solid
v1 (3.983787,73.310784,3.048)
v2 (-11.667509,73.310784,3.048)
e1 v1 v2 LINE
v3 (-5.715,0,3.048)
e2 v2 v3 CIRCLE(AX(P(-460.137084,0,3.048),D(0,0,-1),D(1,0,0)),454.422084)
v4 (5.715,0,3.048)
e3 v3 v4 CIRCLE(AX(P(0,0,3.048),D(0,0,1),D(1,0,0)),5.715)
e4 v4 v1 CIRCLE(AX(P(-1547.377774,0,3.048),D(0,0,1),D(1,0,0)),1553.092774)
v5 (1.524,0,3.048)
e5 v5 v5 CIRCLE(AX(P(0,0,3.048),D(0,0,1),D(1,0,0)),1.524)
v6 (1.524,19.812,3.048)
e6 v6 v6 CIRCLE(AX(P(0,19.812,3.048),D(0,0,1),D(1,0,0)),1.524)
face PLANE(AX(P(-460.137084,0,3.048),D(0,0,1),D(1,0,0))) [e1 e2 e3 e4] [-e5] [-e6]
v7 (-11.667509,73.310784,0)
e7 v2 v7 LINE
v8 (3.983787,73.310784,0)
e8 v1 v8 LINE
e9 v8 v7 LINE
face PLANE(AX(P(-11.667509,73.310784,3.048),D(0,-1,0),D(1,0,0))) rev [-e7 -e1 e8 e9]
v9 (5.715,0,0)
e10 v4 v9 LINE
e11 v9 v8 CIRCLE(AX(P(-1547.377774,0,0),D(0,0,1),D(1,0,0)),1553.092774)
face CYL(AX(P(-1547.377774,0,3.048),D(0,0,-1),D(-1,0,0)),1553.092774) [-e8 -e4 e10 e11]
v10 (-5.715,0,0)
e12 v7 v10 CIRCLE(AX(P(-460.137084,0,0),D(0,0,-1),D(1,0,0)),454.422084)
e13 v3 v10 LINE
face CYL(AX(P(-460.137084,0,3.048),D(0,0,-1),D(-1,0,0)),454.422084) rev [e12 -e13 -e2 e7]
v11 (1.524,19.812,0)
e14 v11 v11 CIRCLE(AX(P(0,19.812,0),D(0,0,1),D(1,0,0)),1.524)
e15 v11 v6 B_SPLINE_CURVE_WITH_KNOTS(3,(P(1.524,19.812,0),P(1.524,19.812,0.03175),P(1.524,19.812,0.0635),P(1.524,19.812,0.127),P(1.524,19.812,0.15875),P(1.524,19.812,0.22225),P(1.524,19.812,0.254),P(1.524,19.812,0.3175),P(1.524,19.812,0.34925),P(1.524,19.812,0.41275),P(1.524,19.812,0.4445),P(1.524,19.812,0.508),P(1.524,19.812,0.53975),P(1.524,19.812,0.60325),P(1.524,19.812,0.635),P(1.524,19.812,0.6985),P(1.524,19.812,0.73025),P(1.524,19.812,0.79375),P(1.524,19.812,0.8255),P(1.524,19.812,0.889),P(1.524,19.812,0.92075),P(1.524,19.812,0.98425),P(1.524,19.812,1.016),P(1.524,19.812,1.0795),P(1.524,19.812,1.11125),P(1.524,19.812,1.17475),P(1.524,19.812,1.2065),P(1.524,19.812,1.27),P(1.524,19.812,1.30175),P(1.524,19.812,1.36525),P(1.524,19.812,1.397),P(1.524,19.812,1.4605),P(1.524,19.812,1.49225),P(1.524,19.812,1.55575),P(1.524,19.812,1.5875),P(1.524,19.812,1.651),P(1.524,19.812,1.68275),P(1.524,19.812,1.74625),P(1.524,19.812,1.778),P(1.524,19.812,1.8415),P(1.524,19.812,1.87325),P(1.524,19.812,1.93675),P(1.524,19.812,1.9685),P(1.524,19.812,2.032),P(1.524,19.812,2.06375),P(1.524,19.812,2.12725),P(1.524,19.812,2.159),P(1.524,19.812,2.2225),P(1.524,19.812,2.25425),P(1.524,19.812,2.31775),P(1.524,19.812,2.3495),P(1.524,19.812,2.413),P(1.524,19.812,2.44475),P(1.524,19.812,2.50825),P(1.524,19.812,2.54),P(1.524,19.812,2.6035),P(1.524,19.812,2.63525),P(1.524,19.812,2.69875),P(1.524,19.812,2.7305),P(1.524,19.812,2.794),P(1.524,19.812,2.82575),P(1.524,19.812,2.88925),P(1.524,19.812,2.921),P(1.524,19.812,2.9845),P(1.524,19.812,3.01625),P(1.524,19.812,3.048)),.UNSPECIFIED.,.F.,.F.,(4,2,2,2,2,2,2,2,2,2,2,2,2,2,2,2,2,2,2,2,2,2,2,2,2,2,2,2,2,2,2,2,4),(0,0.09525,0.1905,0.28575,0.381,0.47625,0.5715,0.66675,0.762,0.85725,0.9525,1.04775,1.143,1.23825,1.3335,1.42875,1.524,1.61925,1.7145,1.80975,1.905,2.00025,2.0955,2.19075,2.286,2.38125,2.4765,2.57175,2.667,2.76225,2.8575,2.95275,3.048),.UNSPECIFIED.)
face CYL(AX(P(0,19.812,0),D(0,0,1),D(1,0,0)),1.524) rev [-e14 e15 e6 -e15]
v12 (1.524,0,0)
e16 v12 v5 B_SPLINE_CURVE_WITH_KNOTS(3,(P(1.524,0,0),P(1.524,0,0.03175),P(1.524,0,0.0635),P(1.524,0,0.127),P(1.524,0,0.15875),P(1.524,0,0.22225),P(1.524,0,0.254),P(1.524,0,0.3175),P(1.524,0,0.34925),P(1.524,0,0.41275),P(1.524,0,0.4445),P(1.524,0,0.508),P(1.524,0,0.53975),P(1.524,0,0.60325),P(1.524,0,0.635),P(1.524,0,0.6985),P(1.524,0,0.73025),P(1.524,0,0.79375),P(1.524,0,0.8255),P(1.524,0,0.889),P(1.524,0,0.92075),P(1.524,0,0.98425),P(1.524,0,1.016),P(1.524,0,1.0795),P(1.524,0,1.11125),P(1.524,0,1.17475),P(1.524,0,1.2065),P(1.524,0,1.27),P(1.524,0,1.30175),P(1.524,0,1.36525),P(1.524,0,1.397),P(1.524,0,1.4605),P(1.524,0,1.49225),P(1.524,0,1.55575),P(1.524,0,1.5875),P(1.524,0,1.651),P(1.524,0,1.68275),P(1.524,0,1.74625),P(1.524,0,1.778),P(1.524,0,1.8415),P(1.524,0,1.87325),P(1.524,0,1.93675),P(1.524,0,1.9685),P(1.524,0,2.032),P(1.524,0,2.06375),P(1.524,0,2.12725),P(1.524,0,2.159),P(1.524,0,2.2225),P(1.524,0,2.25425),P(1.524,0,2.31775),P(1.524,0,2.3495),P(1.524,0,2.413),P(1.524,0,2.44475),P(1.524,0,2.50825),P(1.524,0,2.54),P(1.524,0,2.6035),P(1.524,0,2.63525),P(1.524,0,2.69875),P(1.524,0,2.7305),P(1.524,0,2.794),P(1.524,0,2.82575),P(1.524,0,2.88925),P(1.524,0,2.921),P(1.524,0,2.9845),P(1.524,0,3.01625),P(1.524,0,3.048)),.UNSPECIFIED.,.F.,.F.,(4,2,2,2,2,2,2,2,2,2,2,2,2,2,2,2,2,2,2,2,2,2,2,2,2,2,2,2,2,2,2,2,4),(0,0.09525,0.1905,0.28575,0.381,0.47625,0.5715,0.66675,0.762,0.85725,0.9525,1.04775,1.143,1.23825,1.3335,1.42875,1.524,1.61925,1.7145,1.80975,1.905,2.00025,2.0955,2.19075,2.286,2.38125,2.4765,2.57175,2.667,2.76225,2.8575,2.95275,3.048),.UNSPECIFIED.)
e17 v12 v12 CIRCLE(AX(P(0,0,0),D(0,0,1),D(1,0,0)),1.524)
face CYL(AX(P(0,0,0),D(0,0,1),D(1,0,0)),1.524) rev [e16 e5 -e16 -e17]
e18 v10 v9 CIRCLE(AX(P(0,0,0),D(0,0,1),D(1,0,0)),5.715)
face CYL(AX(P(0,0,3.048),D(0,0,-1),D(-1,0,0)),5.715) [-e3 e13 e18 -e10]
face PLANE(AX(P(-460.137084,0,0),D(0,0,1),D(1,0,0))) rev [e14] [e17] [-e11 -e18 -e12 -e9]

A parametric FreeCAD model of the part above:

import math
import FreeCAD as App
import Part
import Sketcher
from FreeCAD import Vector
Q = App.Units.Quantity

doc = App.newDocument("Part")
params = doc.addObject("Spreadsheet::Sheet", "Params")
for row, (alias, value) in enumerate([
    ("sketch1_radius", "0.225 in"),
    ("pad1_length", "0.12 in"),
    ("sketch2_diameter", "0.12 in"),
    ("pocket1_length", "0.12 in"),
], start=1):
    params.set(f"A{row}", alias)
    params.set(f"B{row}", "=" + value)
    params.setAlias(f"B{row}", alias)

body = doc.addObject("PartDesign::Body", "Body")

sketch1 = body.newObject("Sketcher::SketchObject", "Sketch")
sketch1.AttachmentSupport = (doc.getObject("XY_Plane"), [""])
sketch1.MapMode = "FlatFace"
sketch1.addGeometry([
    Part.LineSegment(Vector(4, 73, 0), Vector(-12, 73, 0)),
    Part.ArcOfCircle(Part.Circle(Vector(-460, 0, 0), Vector(0, 0, 1), 454), math.radians(0), math.radians(9.28)),
    Part.ArcOfCircle(Part.Circle(Vector(0, 0, 0), Vector(0, 0, 1), 6), math.radians(180), math.radians(360)),
    Part.ArcOfCircle(Part.Circle(Vector(-1547, 0, 0), Vector(0, 0, 1), 1553), math.radians(0), math.radians(2.71)),
], False)
sketch1.addConstraint([
    Sketcher.Constraint("Coincident", 0, 2, 1, 2),
    Sketcher.Constraint("Tangent", 1, 1, 2, 1),
    Sketcher.Constraint("Tangent", 2, 2, 3, 1),
    Sketcher.Constraint("Coincident", 3, 2, 0, 1),
    Sketcher.Constraint("Horizontal", 0),
    Sketcher.Constraint("Coincident", 2, 3, -1, 1),
    Sketcher.Constraint("PointOnObject", 1, 3, -1),
    Sketcher.Constraint("PointOnObject", 3, 3, -1),
    Sketcher.Constraint("Radius", 2, Q("0.225 in")),
    Sketcher.Constraint("Radius", 1, 454.422084),
    Sketcher.Constraint("Radius", 3, 1553.092773),
    Sketcher.Constraint("DistanceX", 0, 2, 0, 1, 15.651297),
])
sketch1.setExpression("Constraints[8]", "Params.sketch1_radius")
pad1 = body.newObject("PartDesign::Pad", "Pad")
pad1.Profile = sketch1
pad1.setExpression("Length", "Params.pad1_length")

sketch2 = body.newObject("Sketcher::SketchObject", "Sketch001")
sketch2.AttachmentSupport = (doc.getObject("XY_Plane"), [""])
sketch2.MapMode = "FlatFace"
sketch2.AttachmentOffset = App.Placement(Vector(0, 0, 0.12 * 25.4), App.Rotation())
sketch2.addGeometry([
    Part.Circle(Vector(0, 0, 0), Vector(0, 0, 1), 1.5),
    Part.Circle(Vector(0, 19.8, 0), Vector(0, 0, 1), 1.5),
], False)
sketch2.addConstraint([
    Sketcher.Constraint("Coincident", 0, 3, -1, 1),
    Sketcher.Constraint("Equal", 0, 1),
    Sketcher.Constraint("PointOnObject", 1, 3, -2),
    Sketcher.Constraint("Diameter", 0, Q("0.12 in")),
    Sketcher.Constraint("DistanceY", -1, 1, 1, 3, Q("0.78 in")),
])
sketch2.setExpression("Constraints[3]", "Params.sketch2_diameter")
pocket1 = body.newObject("PartDesign::Pocket", "Pocket")
pocket1.Profile = sketch2
pocket1.setExpression("Length", "Params.pocket1_length")

doc.recompute()
